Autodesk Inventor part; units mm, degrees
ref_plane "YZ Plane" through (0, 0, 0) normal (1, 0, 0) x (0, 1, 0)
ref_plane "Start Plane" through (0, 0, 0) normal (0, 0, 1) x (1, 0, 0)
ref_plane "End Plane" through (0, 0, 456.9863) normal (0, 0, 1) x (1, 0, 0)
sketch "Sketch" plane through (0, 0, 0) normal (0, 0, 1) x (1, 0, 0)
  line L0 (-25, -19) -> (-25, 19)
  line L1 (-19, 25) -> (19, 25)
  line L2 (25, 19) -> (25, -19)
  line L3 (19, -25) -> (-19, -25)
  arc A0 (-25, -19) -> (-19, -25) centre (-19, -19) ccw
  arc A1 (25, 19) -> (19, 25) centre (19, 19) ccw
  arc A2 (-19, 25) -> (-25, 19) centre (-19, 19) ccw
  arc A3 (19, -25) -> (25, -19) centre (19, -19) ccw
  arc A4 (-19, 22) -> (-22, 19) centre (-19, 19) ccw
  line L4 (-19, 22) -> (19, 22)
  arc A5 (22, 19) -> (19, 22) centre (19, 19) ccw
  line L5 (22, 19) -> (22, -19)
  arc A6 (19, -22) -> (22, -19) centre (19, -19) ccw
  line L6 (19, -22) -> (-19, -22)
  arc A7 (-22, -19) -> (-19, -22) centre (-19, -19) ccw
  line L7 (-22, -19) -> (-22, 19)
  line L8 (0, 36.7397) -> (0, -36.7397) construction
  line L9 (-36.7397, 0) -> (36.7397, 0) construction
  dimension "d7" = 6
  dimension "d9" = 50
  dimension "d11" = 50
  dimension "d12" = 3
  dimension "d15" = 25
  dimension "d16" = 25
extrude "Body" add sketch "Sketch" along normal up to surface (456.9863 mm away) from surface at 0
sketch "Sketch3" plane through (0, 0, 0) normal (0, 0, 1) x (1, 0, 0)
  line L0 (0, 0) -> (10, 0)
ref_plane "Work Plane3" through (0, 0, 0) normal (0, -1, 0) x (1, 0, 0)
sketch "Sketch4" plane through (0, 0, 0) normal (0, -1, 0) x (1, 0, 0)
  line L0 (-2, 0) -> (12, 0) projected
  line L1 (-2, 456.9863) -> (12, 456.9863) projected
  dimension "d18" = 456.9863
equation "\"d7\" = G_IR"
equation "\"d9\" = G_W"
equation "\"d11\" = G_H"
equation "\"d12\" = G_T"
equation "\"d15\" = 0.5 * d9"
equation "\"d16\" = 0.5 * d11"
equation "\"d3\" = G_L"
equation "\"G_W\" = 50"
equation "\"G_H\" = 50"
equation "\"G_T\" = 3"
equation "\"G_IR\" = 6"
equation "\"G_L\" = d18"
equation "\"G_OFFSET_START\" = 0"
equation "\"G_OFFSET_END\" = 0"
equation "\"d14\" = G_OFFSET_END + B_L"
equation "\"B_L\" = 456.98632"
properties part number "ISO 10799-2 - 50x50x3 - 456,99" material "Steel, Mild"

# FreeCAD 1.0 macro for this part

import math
import FreeCAD as App
import Part
import Sketcher

doc = App.newDocument("Part")
body = doc.addObject("PartDesign::Body", "Body")

sketch1 = body.newObject("Sketcher::SketchObject", "Sketch")
sketch1.AttachmentSupport = (doc.getObject("XY_Plane"), [""])
sketch1.MapMode = "FlatFace"
sketch1.addGeometry(Part.LineSegment(App.Vector(-25, 19, 0), App.Vector(-25, -19, 0)), False)
sketch1.addGeometry(Part.ArcOfCircle(Part.Circle(App.Vector(-19, -19, 0), App.Vector(0, 0, 1), 6), math.radians(180), math.radians(270)), False)
sketch1.addGeometry(Part.LineSegment(App.Vector(-19, -25, 0), App.Vector(19, -25, 0)), False)
sketch1.addGeometry(Part.ArcOfCircle(Part.Circle(App.Vector(19, -19, 0), App.Vector(0, 0, 1), 6), math.radians(-90), math.radians(0)), False)
sketch1.addGeometry(Part.LineSegment(App.Vector(25, -19, 0), App.Vector(25, 19, 0)), False)
sketch1.addGeometry(Part.ArcOfCircle(Part.Circle(App.Vector(19, 19, 0), App.Vector(0, 0, 1), 6), math.radians(0), math.radians(90)), False)
sketch1.addGeometry(Part.LineSegment(App.Vector(19, 25, 0), App.Vector(-19, 25, 0)), False)
sketch1.addGeometry(Part.ArcOfCircle(Part.Circle(App.Vector(-19, 19, 0), App.Vector(0, 0, 1), 6), math.radians(90), math.radians(180)), False)
sketch1.addGeometry(Part.ArcOfCircle(Part.Circle(App.Vector(-19, 19, 0), App.Vector(0, 0, 1), 3), math.radians(90), math.radians(180)), False)
sketch1.addGeometry(Part.LineSegment(App.Vector(-19, 22, 0), App.Vector(19, 22, 0)), False)
sketch1.addGeometry(Part.ArcOfCircle(Part.Circle(App.Vector(19, 19, 0), App.Vector(0, 0, 1), 3), math.radians(0), math.radians(90)), False)
sketch1.addGeometry(Part.LineSegment(App.Vector(22, 19, 0), App.Vector(22, -19, 0)), False)
sketch1.addGeometry(Part.ArcOfCircle(Part.Circle(App.Vector(19, -19, 0), App.Vector(0, 0, 1), 3), math.radians(-90), math.radians(0)), False)
sketch1.addGeometry(Part.LineSegment(App.Vector(19, -22, 0), App.Vector(-19, -22, 0)), False)
sketch1.addGeometry(Part.ArcOfCircle(Part.Circle(App.Vector(-19, -19, 0), App.Vector(0, 0, 1), 3), math.radians(180), math.radians(270)), False)
sketch1.addGeometry(Part.LineSegment(App.Vector(-22, -19, 0), App.Vector(-22, 19, 0)), False)
sketch1.addConstraint(Sketcher.Constraint("Tangent", 0, 2, 1, 1))
sketch1.addConstraint(Sketcher.Constraint("Tangent", 1, 2, 2, 1))
sketch1.addConstraint(Sketcher.Constraint("Tangent", 2, 2, 3, 1))
sketch1.addConstraint(Sketcher.Constraint("Tangent", 3, 2, 4, 1))
sketch1.addConstraint(Sketcher.Constraint("Tangent", 4, 2, 5, 1))
sketch1.addConstraint(Sketcher.Constraint("Tangent", 5, 2, 6, 1))
sketch1.addConstraint(Sketcher.Constraint("Tangent", 6, 2, 7, 1))
sketch1.addConstraint(Sketcher.Constraint("Tangent", 7, 2, 0, 1))
sketch1.addConstraint(Sketcher.Constraint("Tangent", 8, 1, 9, 1))
sketch1.addConstraint(Sketcher.Constraint("Tangent", 9, 2, 10, 2))
sketch1.addConstraint(Sketcher.Constraint("Tangent", 10, 1, 11, 1))
sketch1.addConstraint(Sketcher.Constraint("Tangent", 11, 2, 12, 2))
sketch1.addConstraint(Sketcher.Constraint("Tangent", 12, 1, 13, 1))
sketch1.addConstraint(Sketcher.Constraint("Tangent", 13, 2, 14, 2))
sketch1.addConstraint(Sketcher.Constraint("Tangent", 14, 1, 15, 1))
sketch1.addConstraint(Sketcher.Constraint("Tangent", 15, 2, 8, 2))
sketch1.addConstraint(Sketcher.Constraint("Vertical", 0))
sketch1.addConstraint(Sketcher.Constraint("Horizontal", 2))
sketch1.addConstraint(Sketcher.Constraint("Vertical", 4))
sketch1.addConstraint(Sketcher.Constraint("Horizontal", 6))
sketch1.addConstraint(Sketcher.Constraint("Horizontal", 9))
sketch1.addConstraint(Sketcher.Constraint("Vertical", 11))
sketch1.addConstraint(Sketcher.Constraint("Horizontal", 13))
sketch1.addConstraint(Sketcher.Constraint("Vertical", 15))
sketch1.addConstraint(Sketcher.Constraint("Coincident", 8, 3, 7, 3))
sketch1.addConstraint(Sketcher.Constraint("Coincident", 10, 3, 5, 3))
sketch1.addConstraint(Sketcher.Constraint("Coincident", 12, 3, 3, 3))
sketch1.addConstraint(Sketcher.Constraint("Equal", 1, 3))
sketch1.addConstraint(Sketcher.Constraint("Equal", 3, 5))
sketch1.addConstraint(Sketcher.Constraint("Equal", 5, 7))
sketch1.addConstraint(Sketcher.Constraint("Equal", 12, 14))
sketch1.addConstraint(Sketcher.Constraint("Symmetric", 1, 3, 5, 3, -1, 1))
sketch1.addConstraint(Sketcher.Constraint("Equal", 13, 0))
sketch1.addConstraint(Sketcher.Constraint("Radius", 1, 6.0))
sketch1.addConstraint(Sketcher.Constraint("Radius", 8, 3.0))
sketch1.addConstraint(Sketcher.Constraint("DistanceX", 0, 2, -1, 1, 25.0))
pad1 = body.newObject("PartDesign::Pad", "Pad")
pad1.Profile = sketch1
pad1.Length = 456.9863

doc.recompute()
